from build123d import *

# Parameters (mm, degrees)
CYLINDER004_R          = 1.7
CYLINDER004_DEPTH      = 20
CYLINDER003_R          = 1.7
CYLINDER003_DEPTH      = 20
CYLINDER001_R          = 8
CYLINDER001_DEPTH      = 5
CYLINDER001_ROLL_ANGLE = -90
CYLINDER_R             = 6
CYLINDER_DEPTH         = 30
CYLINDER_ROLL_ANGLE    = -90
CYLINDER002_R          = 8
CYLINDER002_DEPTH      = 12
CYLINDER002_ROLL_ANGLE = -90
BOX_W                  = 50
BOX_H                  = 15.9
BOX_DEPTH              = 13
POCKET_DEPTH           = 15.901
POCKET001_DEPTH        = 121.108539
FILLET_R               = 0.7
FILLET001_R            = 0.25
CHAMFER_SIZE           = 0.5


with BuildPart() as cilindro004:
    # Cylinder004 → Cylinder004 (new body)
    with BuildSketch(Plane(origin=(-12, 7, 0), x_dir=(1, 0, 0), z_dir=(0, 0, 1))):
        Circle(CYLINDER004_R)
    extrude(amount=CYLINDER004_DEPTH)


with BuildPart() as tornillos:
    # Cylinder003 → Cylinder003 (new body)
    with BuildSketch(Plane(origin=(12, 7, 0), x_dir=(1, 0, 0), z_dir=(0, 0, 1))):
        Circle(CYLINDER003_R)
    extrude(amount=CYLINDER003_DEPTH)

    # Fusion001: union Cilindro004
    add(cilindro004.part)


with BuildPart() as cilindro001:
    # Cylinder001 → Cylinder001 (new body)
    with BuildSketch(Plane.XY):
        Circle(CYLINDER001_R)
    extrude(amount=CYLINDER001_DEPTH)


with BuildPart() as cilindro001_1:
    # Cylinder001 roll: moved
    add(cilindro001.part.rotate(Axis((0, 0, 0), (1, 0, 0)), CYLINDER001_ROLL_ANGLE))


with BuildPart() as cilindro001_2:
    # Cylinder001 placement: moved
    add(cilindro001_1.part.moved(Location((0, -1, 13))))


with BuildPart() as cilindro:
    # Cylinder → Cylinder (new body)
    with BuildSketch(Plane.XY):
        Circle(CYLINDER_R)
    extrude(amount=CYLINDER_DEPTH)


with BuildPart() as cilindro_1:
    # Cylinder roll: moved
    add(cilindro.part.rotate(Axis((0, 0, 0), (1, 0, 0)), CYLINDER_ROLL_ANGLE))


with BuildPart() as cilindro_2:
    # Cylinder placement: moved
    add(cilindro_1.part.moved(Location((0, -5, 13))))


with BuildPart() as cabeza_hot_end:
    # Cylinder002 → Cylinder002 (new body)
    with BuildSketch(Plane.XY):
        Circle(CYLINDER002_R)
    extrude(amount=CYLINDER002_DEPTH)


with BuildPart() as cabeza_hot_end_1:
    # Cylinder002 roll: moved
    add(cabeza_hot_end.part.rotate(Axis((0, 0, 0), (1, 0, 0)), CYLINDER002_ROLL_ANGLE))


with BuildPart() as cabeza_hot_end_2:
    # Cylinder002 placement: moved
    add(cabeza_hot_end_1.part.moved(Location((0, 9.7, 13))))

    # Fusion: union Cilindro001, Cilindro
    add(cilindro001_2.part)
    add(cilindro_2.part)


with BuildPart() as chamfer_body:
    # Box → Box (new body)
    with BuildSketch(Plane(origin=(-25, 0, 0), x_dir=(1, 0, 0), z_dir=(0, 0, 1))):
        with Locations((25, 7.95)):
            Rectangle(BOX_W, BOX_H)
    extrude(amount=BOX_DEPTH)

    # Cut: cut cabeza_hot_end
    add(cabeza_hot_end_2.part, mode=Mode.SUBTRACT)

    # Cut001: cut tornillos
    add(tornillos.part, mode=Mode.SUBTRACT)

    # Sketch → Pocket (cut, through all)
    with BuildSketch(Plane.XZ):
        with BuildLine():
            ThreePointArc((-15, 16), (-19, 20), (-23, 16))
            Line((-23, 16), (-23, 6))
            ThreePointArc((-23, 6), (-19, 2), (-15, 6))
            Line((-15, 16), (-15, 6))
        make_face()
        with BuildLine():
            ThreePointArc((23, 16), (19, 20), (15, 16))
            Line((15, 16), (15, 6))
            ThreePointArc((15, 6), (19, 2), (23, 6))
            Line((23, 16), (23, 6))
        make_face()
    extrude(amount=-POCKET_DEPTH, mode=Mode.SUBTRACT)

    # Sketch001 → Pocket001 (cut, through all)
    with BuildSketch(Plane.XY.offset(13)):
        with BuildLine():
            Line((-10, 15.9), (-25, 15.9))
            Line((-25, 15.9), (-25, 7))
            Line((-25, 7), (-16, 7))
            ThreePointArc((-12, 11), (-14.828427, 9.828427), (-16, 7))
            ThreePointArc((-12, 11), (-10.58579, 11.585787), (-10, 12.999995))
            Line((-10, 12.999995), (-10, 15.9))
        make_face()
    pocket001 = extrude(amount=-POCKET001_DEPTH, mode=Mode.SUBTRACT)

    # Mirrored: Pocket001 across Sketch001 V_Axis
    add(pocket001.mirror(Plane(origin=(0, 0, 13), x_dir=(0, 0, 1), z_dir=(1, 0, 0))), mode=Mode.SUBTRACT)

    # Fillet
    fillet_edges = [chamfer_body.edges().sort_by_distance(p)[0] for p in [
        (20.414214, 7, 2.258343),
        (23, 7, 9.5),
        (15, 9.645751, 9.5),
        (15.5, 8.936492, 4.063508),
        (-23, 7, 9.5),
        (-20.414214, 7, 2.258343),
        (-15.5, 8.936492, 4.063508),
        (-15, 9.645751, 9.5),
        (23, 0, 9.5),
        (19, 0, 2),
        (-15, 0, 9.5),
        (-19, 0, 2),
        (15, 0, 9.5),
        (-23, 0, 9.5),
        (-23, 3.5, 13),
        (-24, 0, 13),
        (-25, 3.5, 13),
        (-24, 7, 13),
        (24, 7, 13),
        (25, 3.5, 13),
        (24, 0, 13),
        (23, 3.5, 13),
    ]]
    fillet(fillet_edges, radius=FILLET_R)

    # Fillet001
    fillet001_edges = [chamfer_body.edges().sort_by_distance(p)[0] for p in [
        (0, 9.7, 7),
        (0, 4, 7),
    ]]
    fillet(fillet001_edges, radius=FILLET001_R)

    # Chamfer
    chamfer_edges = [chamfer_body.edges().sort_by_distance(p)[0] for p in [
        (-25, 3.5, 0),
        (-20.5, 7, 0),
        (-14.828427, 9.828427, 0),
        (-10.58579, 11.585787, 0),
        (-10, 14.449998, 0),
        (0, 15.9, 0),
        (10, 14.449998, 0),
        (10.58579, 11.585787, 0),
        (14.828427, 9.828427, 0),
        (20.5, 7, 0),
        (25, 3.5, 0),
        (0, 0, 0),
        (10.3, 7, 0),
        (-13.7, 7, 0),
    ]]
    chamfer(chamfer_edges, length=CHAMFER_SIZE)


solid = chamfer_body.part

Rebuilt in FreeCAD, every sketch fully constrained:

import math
import FreeCAD as App
import Part
import Sketcher

V = App.Vector


def edges_at(feature, points):
    """Names of the edges that pass closest to the given points."""
    edges = feature.Shape.Edges
    near = lambda p: min(range(len(edges)), key=lambda i: edges[i].distToShape(Part.Vertex(*p))[0])
    return sorted({f"Edge{near(p) + 1}" for p in points})

doc = App.newDocument("Part")
params = doc.addObject("Spreadsheet::Sheet", "Params")
for row, (alias, value) in enumerate([
    ("sketch1_diameter", "3.4 mm"),
    ("pad1_length", "20 mm"),
    ("sketch2_diameter", "3.4 mm"),
    ("pad2_length", "20 mm"),
    ("sketch3_diameter", "16 mm"),
    ("pad3_length", "5 mm"),
    ("sketch4_diameter", "12 mm"),
    ("pad4_length", "30 mm"),
    ("sketch5_diameter", "16 mm"),
    ("pad5_length", "12 mm"),
    ("sketch6_width", "50 mm"),
    ("sketch6_height", "15.9 mm"),
    ("pad6_length", "13 mm"),
    ("sketch7_radius", "4 mm"),
    ("sketch7_height", "10 mm"),
    ("sketch8_radius", "4 mm"),
    ("sketch8_width", "15 mm"),
    ("sketch8_width2", "9 mm"),
    ("sketch8_height", "8.9 mm"),
    ("fillet_radius", "0.7 mm"),
    ("fillet2_radius", "0.25 mm"),
    ("chamfer_size", "0.5 mm"),
], start=1):
    params.set(f"A{row}", alias)
    params.set(f"B{row}", "=" + value)
    params.setAlias(f"B{row}", alias)

body = doc.addObject("PartDesign::Body", "Body")

# Sketch on XY plane
sketch1 = doc.addObject("Sketcher::SketchObject", "Sketch")
body.addObject(sketch1)
sketch1.AttachmentSupport = (doc.XY_Plane, [""])
sketch1.MapMode = "FlatFace"
sketch1.addGeometry(Part.Circle(V(-12, 7, 0), V(0, 0, 1), 1.7), False)
sketch1.addConstraint([
    Sketcher.Constraint("Diameter", 0, 3.4),
    Sketcher.Constraint("DistanceX", 0, 3, -1, 1, 12.0),
    Sketcher.Constraint("DistanceY", -1, 1, 0, 3, 7.0),
])
sketch1.setExpression("Constraints[0]", "Params.sketch1_diameter")
pad1 = doc.addObject("PartDesign::Pad", "Pad")
body.addObject(pad1)
pad1.Profile = sketch1
pad1.setExpression("Length", "Params.pad1_length")
body2 = doc.addObject("PartDesign::Body", "Body001")
body2.AllowCompound = True

# Sketch on XY plane
sketch2 = doc.addObject("Sketcher::SketchObject", "Sketch001")
body2.addObject(sketch2)
sketch2.AttachmentSupport = (doc.getObject("XY_Plane001"), [""])
sketch2.MapMode = "FlatFace"
sketch2.addGeometry(Part.Circle(V(12, 7, 0), V(0, 0, 1), 1.7), False)
sketch2.addConstraint([
    Sketcher.Constraint("Diameter", 0, 3.4),
    Sketcher.Constraint("DistanceX", -1, 1, 0, 3, 12.0),
    Sketcher.Constraint("DistanceY", -1, 1, 0, 3, 7.0),
])
sketch2.setExpression("Constraints[0]", "Params.sketch2_diameter")
pad2 = doc.addObject("PartDesign::Pad", "Pad001")
body2.addObject(pad2)
pad2.Profile = sketch2
pad2.setExpression("Length", "Params.pad2_length")
doc.recompute()

boolean = doc.addObject("PartDesign::Boolean", "Boolean")
body2.addObject(boolean)
boolean.Type = "Fuse"
boolean.addObjects([body])
body3 = doc.addObject("PartDesign::Body", "Body002")

# Sketch on XY plane
sketch3 = doc.addObject("Sketcher::SketchObject", "Sketch002")
body3.addObject(sketch3)
sketch3.AttachmentSupport = (doc.getObject("XY_Plane002"), [""])
sketch3.MapMode = "FlatFace"
sketch3.addGeometry(Part.Circle(V(0, 0, 0), V(0, 0, 1), 8), False)
sketch3.addConstraint([
    Sketcher.Constraint("Coincident", 0, 3, -1, 1),
    Sketcher.Constraint("Diameter", 0, 16.0),
])
sketch3.setExpression("Constraints[1]", "Params.sketch3_diameter")
pad3 = doc.addObject("PartDesign::Pad", "Pad002")
body3.addObject(pad3)
pad3.Profile = sketch3
pad3.setExpression("Length", "Params.pad3_length")
body4 = doc.addObject("PartDesign::Body", "Body003")
doc.recompute()

body3.Placement = App.Placement(V(0, 0, 0), App.Rotation(V(1, 0, 0), 270))
boolean2 = doc.addObject("PartDesign::Boolean", "Boolean001")
body4.addObject(boolean2)
boolean2.Type = "Fuse"
boolean2.addObjects([body3])
body5 = doc.addObject("PartDesign::Body", "Body004")
doc.recompute()

body4.Placement = App.Placement(V(0, -1, 13), App.Rotation(V(0, 0, 1), 0))
boolean3 = doc.addObject("PartDesign::Boolean", "Boolean002")
body5.addObject(boolean3)
boolean3.Type = "Fuse"
boolean3.addObjects([body4])
body6 = doc.addObject("PartDesign::Body", "Body005")

# Sketch on XY plane
sketch4 = doc.addObject("Sketcher::SketchObject", "Sketch003")
body6.addObject(sketch4)
sketch4.AttachmentSupport = (doc.getObject("XY_Plane005"), [""])
sketch4.MapMode = "FlatFace"
sketch4.addGeometry(Part.Circle(V(0, 0, 0), V(0, 0, 1), 6), False)
sketch4.addConstraint([
    Sketcher.Constraint("Coincident", 0, 3, -1, 1),
    Sketcher.Constraint("Diameter", 0, 12.0),
])
sketch4.setExpression("Constraints[1]", "Params.sketch4_diameter")
pad4 = doc.addObject("PartDesign::Pad", "Pad003")
body6.addObject(pad4)
pad4.Profile = sketch4
pad4.setExpression("Length", "Params.pad4_length")
body7 = doc.addObject("PartDesign::Body", "Body006")
doc.recompute()

body6.Placement = App.Placement(V(0, 0, 0), App.Rotation(V(1, 0, 0), 270))
boolean4 = doc.addObject("PartDesign::Boolean", "Boolean003")
body7.addObject(boolean4)
boolean4.Type = "Fuse"
boolean4.addObjects([body6])
body8 = doc.addObject("PartDesign::Body", "Body007")
doc.recompute()

body7.Placement = App.Placement(V(0, -5, 13), App.Rotation(V(0, 0, 1), 0))
boolean5 = doc.addObject("PartDesign::Boolean", "Boolean004")
body8.addObject(boolean5)
boolean5.Type = "Fuse"
boolean5.addObjects([body7])
body9 = doc.addObject("PartDesign::Body", "Body008")

# Sketch on XY plane
sketch5 = doc.addObject("Sketcher::SketchObject", "Sketch004")
body9.addObject(sketch5)
sketch5.AttachmentSupport = (doc.getObject("XY_Plane008"), [""])
sketch5.MapMode = "FlatFace"
sketch5.addGeometry(Part.Circle(V(0, 0, 0), V(0, 0, 1), 8), False)
sketch5.addConstraint([
    Sketcher.Constraint("Coincident", 0, 3, -1, 1),
    Sketcher.Constraint("Diameter", 0, 16.0),
])
sketch5.setExpression("Constraints[1]", "Params.sketch5_diameter")
pad5 = doc.addObject("PartDesign::Pad", "Pad004")
body9.addObject(pad5)
pad5.Profile = sketch5
pad5.setExpression("Length", "Params.pad5_length")
body10 = doc.addObject("PartDesign::Body", "Body009")
doc.recompute()

body9.Placement = App.Placement(V(0, 0, 0), App.Rotation(V(1, 0, 0), 270))
boolean6 = doc.addObject("PartDesign::Boolean", "Boolean005")
body10.addObject(boolean6)
boolean6.Type = "Fuse"
boolean6.addObjects([body9])
body11 = doc.addObject("PartDesign::Body", "Body010")
body11.AllowCompound = True
doc.recompute()

body10.Placement = App.Placement(V(0, 9.7, 13), App.Rotation(V(0, 0, 1), 0))
boolean7 = doc.addObject("PartDesign::Boolean", "Boolean006")
body11.addObject(boolean7)
boolean7.Type = "Fuse"
boolean7.addObjects([body10])
doc.recompute()

boolean8 = doc.addObject("PartDesign::Boolean", "Boolean007")
body11.addObject(boolean8)
boolean8.Type = "Fuse"
boolean8.addObjects([body5])
doc.recompute()

boolean9 = doc.addObject("PartDesign::Boolean", "Boolean008")
body11.addObject(boolean9)
boolean9.Type = "Fuse"
boolean9.addObjects([body8])
body12 = doc.addObject("PartDesign::Body", "Body011")

# Sketch on XY plane
sketch6 = doc.addObject("Sketcher::SketchObject", "Sketch005")
body12.addObject(sketch6)
sketch6.AttachmentSupport = (doc.getObject("XY_Plane011"), [""])
sketch6.MapMode = "FlatFace"
sketch6.addGeometry([
    Part.LineSegment(V(-25, 16, 0), V(-25, 0, 0)),
    Part.LineSegment(V(-25, 0, 0), V(25, 0, 0)),
    Part.LineSegment(V(25, 0, 0), V(25, 16, 0)),
    Part.LineSegment(V(25, 16, 0), V(-25, 16, 0)),
], False)
sketch6.addConstraint([
    Sketcher.Constraint("Coincident", 0, 2, 1, 1),
    Sketcher.Constraint("Coincident", 1, 2, 2, 1),
    Sketcher.Constraint("Coincident", 2, 2, 3, 1),
    Sketcher.Constraint("Coincident", 3, 2, 0, 1),
    Sketcher.Constraint("Vertical", 0),
    Sketcher.Constraint("Horizontal", 1),
    Sketcher.Constraint("Vertical", 2),
    Sketcher.Constraint("Horizontal", 3),
    Sketcher.Constraint("Symmetric", 0, 2, 1, 2, -1, 1),
    Sketcher.Constraint("DistanceX", 1, 1, 1, 2, 50.0),
    Sketcher.Constraint("DistanceY", 0, 2, 0, 1, 15.9),
])
sketch6.setExpression("Constraints[9]", "Params.sketch6_width")
sketch6.setExpression("Constraints[10]", "Params.sketch6_height")
pad6 = doc.addObject("PartDesign::Pad", "Pad005")
body12.addObject(pad6)
pad6.Profile = sketch6
pad6.setExpression("Length", "Params.pad6_length")
doc.recompute()

boolean10 = doc.addObject("PartDesign::Boolean", "Boolean009")
body12.addObject(boolean10)
boolean10.Type = "Cut"
boolean10.addObjects([body11])
doc.recompute()

boolean11 = doc.addObject("PartDesign::Boolean", "Boolean010")
body12.addObject(boolean11)
boolean11.Type = "Cut"
boolean11.addObjects([body2])

# Sketch on XZ plane
sketch7 = doc.addObject("Sketcher::SketchObject", "Sketch006")
body12.addObject(sketch7)
sketch7.AttachmentSupport = (doc.getObject("XZ_Plane011"), [""])
sketch7.MapMode = "FlatFace"
sketch7.addGeometry([
    Part.ArcOfCircle(Part.Circle(V(-19, 16, 0), V(0, 0, 1), 4), math.radians(0), math.radians(180)),  # 0
    Part.LineSegment(V(-23, 16, 0), V(-23, 6, 0)),  # 1
    Part.ArcOfCircle(Part.Circle(V(-19, 6, 0), V(0, 0, 1), 4), math.radians(180), math.radians(360)),  # 2
    Part.LineSegment(V(-15, 6, 0), V(-15, 16, 0)),  # 3
    Part.ArcOfCircle(Part.Circle(V(19, 16, 0), V(0, 0, 1), 4), math.radians(0), math.radians(180)),  # 4
    Part.LineSegment(V(15, 16, 0), V(15, 6, 0)),  # 5
    Part.ArcOfCircle(Part.Circle(V(19, 6, 0), V(0, 0, 1), 4), math.radians(180), math.radians(360)),  # 6
    Part.LineSegment(V(23, 6, 0), V(23, 16, 0)),  # 7
], False)
sketch7.addConstraint([
    Sketcher.Constraint("Tangent", 0, 2, 1, 1),
    Sketcher.Constraint("Tangent", 1, 2, 2, 1),
    Sketcher.Constraint("Tangent", 2, 2, 3, 1),
    Sketcher.Constraint("Tangent", 3, 2, 0, 1),
    Sketcher.Constraint("Tangent", 4, 2, 5, 1),
    Sketcher.Constraint("Tangent", 5, 2, 6, 1),
    Sketcher.Constraint("Tangent", 6, 2, 7, 1),
    Sketcher.Constraint("Tangent", 7, 2, 4, 1),
    Sketcher.Constraint("Vertical", 1),
    Sketcher.Constraint("Vertical", 3),
    Sketcher.Constraint("Vertical", 5),
    Sketcher.Constraint("Vertical", 7),
    Sketcher.Constraint("Equal", 2, 4),
    Sketcher.Constraint("Symmetric", 0, 3, 4, 3, -2),
    Sketcher.Constraint("Horizontal", 2, 3, 6, 3),
    Sketcher.Constraint("Radius", 0, 4.0),
    Sketcher.Constraint("DistanceY", 1, 2, 1, 1, 10.0),
    Sketcher.Constraint("DistanceX", 0, 3, -1, 1, 19.0),
    Sketcher.Constraint("DistanceY", -1, 1, 0, 3, 16.0),
])
sketch7.setExpression("Constraints[15]", "Params.sketch7_radius")
sketch7.setExpression("Constraints[16]", "Params.sketch7_height")
pocket1 = doc.addObject("PartDesign::Pocket", "Pocket")
body12.addObject(pocket1)
pocket1.Profile = sketch7
pocket1.Type = "ThroughAll"

# Sketch on XY plane
sketch8 = doc.addObject("Sketcher::SketchObject", "Sketch007")
body12.addObject(sketch8)
sketch8.AttachmentSupport = (doc.getObject("XY_Plane011"), [""])
sketch8.MapMode = "FlatFace"
sketch8.AttachmentOffset = App.Placement(V(0, 0, 13), App.Rotation())
sketch8.addGeometry([
    Part.LineSegment(V(-10, 15.9, 0), V(-25, 15.9, 0)),  # 0
    Part.LineSegment(V(-25, 15.9, 0), V(-25, 7, 0)),  # 1
    Part.LineSegment(V(-25, 7, 0), V(-16, 7, 0)),  # 2
    Part.ArcOfCircle(Part.Circle(V(-12, 7, 0), V(0, 0, 1), 4), math.radians(90), math.radians(180)),  # 3
    Part.ArcOfCircle(Part.Circle(V(-12, 13, 0), V(0, 0, 1), 2), math.radians(-90), math.radians(0)),  # 4
    Part.LineSegment(V(-10, 13, 0), V(-10, 15.9, 0)),  # 5
], False)
sketch8.addConstraint([
    Sketcher.Constraint("Coincident", 0, 2, 1, 1),
    Sketcher.Constraint("Coincident", 1, 2, 2, 1),
    Sketcher.Constraint("Coincident", 2, 2, 3, 2),
    Sketcher.Constraint("Coincident", 3, 1, 4, 1),
    Sketcher.Constraint("Coincident", 4, 2, 5, 1),
    Sketcher.Constraint("Coincident", 5, 2, 0, 1),
    Sketcher.Constraint("Horizontal", 0),
    Sketcher.Constraint("Vertical", 1),
    Sketcher.Constraint("Horizontal", 2),
    Sketcher.Constraint("Vertical", 5),
    Sketcher.Constraint("Horizontal", 3, 3, 1, 2),
    Sketcher.Constraint("Radius", 3, 4.0),
    Sketcher.Constraint("DistanceX", 0, 2, 0, 1, 15.0),
    Sketcher.Constraint("DistanceX", 2, 1, 2, 2, 9.0),
    Sketcher.Constraint("DistanceY", 1, 2, 1, 1, 8.9),
    Sketcher.Constraint("DistanceX", 3, 3, -1, 1, 12.0),
    Sketcher.Constraint("DistanceY", -1, 1, 3, 3, 7.0),
    Sketcher.Constraint("DistanceX", 3, 1, -1, 1, 12.0),
    Sketcher.Constraint("Radius", 4, 2.000007),
    Sketcher.Constraint("DistanceY", 5, 1, 5, 2, 2.900005),
])
sketch8.setExpression("Constraints[11]", "Params.sketch8_radius")
sketch8.setExpression("Constraints[12]", "Params.sketch8_width")
sketch8.setExpression("Constraints[13]", "Params.sketch8_width2")
sketch8.setExpression("Constraints[14]", "Params.sketch8_height")
pocket2 = doc.addObject("PartDesign::Pocket", "Pocket001")
body12.addObject(pocket2)
pocket2.Profile = sketch8
pocket2.Type = "ThroughAll"
doc.recompute()

mirrored = doc.addObject("PartDesign::Mirrored", "Mirrored")
body12.addObject(mirrored)
mirrored.Originals = [pocket2]
mirrored.MirrorPlane = (doc.getObject("YZ_Plane011"), [""])
body12.Tip = mirrored
doc.recompute()

fillet = doc.addObject("PartDesign::Fillet", "Fillet")
body12.addObject(fillet)
fillet.Base = (mirrored, edges_at(mirrored, [
    (20.414, 7, 2.258),
    (23, 7, 9.5),
    (15, 9.646, 9.5),
    (15.5, 8.936, 4.064),
    (-23, 7, 9.5),
    (-20.414, 7, 2.258),
    (-15.5, 8.936, 4.064),
    (-15, 9.646, 9.5),
    (23, 0, 9.5),
    (19, 0, 2),
    (-15, 0, 9.5),
    (-19, 0, 2),
    (15, 0, 9.5),
    (-23, 0, 9.5),
    (-23, 3.5, 13),
    (-24, 0, 13),
    (-25, 3.5, 13),
    (-24, 7, 13),
    (24, 7, 13),
    (25, 3.5, 13),
    (24, 0, 13),
    (23, 3.5, 13),
]))
fillet.setExpression("Radius", "Params.fillet_radius")
doc.recompute()

fillet2 = doc.addObject("PartDesign::Fillet", "Fillet001")
body12.addObject(fillet2)
fillet2.Base = (fillet, edges_at(fillet, [(0, 9.7, 7), (0, 4, 7)]))
fillet2.setExpression("Radius", "Params.fillet2_radius")
doc.recompute()

chamfer = doc.addObject("PartDesign::Chamfer", "Chamfer")
body12.addObject(chamfer)
chamfer.Base = (fillet2, edges_at(fillet2, [
    (-25, 3.5, 0),
    (-20.5, 7, 0),
    (-14.828, 9.828, 0),
    (-10.586, 11.586, 0),
    (-10, 14.45, 0),
    (0, 15.9, 0),
    (10, 14.45, 0),
    (10.586, 11.586, 0),
    (14.828, 9.828, 0),
    (20.5, 7, 0),
    (25, 3.5, 0),
    (0, 0, 0),
    (10.3, 7, 0),
    (-13.7, 7, 0),
]))
chamfer.setExpression("Size", "Params.chamfer_size")

doc.recompute()
